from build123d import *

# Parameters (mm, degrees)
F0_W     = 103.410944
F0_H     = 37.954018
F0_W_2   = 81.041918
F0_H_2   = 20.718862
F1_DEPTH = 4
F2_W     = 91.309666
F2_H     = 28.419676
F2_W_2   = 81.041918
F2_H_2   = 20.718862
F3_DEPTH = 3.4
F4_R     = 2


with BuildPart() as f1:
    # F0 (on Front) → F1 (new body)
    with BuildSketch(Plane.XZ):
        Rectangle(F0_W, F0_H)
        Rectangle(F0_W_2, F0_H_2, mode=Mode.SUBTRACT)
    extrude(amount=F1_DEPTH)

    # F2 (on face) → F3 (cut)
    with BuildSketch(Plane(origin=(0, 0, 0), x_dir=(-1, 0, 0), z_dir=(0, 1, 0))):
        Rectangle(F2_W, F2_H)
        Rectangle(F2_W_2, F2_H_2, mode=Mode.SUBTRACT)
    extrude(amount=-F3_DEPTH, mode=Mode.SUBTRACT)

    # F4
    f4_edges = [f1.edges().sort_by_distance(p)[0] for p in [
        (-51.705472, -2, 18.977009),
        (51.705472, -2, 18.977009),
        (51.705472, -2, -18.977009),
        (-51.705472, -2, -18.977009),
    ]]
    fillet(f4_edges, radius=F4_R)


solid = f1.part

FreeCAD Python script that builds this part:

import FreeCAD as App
import Part
import Sketcher

V = App.Vector


def edges_at(feature, points):
    """Names of the edges that pass closest to the given points."""
    edges = feature.Shape.Edges
    near = lambda p: min(range(len(edges)), key=lambda i: edges[i].distToShape(Part.Vertex(*p))[0])
    return sorted({f"Edge{near(p) + 1}" for p in points})

doc = App.newDocument("Part")
body = doc.addObject("PartDesign::Body", "Body")

sketch1 = body.newObject("Sketcher::SketchObject", "Sketch")
sketch1.AttachmentSupport = (doc.getObject("XZ_Plane"), [""])
sketch1.MapMode = "FlatFace"
sketch1.addGeometry([
    Part.LineSegment(V(-52, 19, 0), V(-52, -19, 0)),
    Part.LineSegment(V(-52, -19, 0), V(52, -19, 0)),
    Part.LineSegment(V(52, -19, 0), V(52, 19, 0)),
    Part.LineSegment(V(52, 19, 0), V(-52, 19, 0)),
    Part.LineSegment(V(41, -10, 0), V(-41, -10, 0)),
    Part.LineSegment(V(-41, -10, 0), V(-41, 10, 0)),
    Part.LineSegment(V(-41, 10, 0), V(41, 10, 0)),
    Part.LineSegment(V(41, 10, 0), V(41, -10, 0)),
], False)
sketch1.addConstraint([
    Sketcher.Constraint("Coincident", 0, 2, 1, 1),
    Sketcher.Constraint("Coincident", 1, 2, 2, 1),
    Sketcher.Constraint("Coincident", 2, 2, 3, 1),
    Sketcher.Constraint("Coincident", 3, 2, 0, 1),
    Sketcher.Constraint("Coincident", 4, 2, 5, 1),
    Sketcher.Constraint("Coincident", 5, 2, 6, 1),
    Sketcher.Constraint("Coincident", 6, 2, 7, 1),
    Sketcher.Constraint("Coincident", 7, 2, 4, 1),
    Sketcher.Constraint("Vertical", 0),
    Sketcher.Constraint("Horizontal", 1),
    Sketcher.Constraint("Vertical", 2),
    Sketcher.Constraint("Horizontal", 3),
    Sketcher.Constraint("Horizontal", 4),
    Sketcher.Constraint("Vertical", 5),
    Sketcher.Constraint("Horizontal", 6),
    Sketcher.Constraint("Vertical", 7),
    Sketcher.Constraint("Symmetric", 0, 2, 2, 2, -1, 1),
    Sketcher.Constraint("Symmetric", 4, 2, 6, 2, -1, 1),
    Sketcher.Constraint("DistanceX", 1, 1, 1, 2, 103.410944),
    Sketcher.Constraint("DistanceX", 4, 2, 4, 1, 81.041918),
    Sketcher.Constraint("DistanceY", 0, 2, 0, 1, 37.954018),
    Sketcher.Constraint("DistanceY", 5, 1, 5, 2, 20.718862),
])
pad1 = body.newObject("PartDesign::Pad", "Pad")
pad1.Profile = sketch1
pad1.Length = 4

sketch2 = body.newObject("Sketcher::SketchObject", "Sketch001")
sketch2.AttachmentSupport = (doc.getObject("XZ_Plane"), [""])
sketch2.MapMode = "FlatFace"
sketch2.addGeometry([
    Part.LineSegment(V(46, 14, 0), V(46, -14, 0)),
    Part.LineSegment(V(46, -14, 0), V(-46, -14, 0)),
    Part.LineSegment(V(-46, -14, 0), V(-46, 14, 0)),
    Part.LineSegment(V(-46, 14, 0), V(46, 14, 0)),
    Part.LineSegment(V(-41, -10, 0), V(41, -10, 0)),
    Part.LineSegment(V(41, -10, 0), V(41, 10, 0)),
    Part.LineSegment(V(41, 10, 0), V(-41, 10, 0)),
    Part.LineSegment(V(-41, 10, 0), V(-41, -10, 0)),
], False)
sketch2.addConstraint([
    Sketcher.Constraint("Coincident", 0, 2, 1, 1),
    Sketcher.Constraint("Coincident", 1, 2, 2, 1),
    Sketcher.Constraint("Coincident", 2, 2, 3, 1),
    Sketcher.Constraint("Coincident", 3, 2, 0, 1),
    Sketcher.Constraint("Coincident", 4, 2, 5, 1),
    Sketcher.Constraint("Coincident", 5, 2, 6, 1),
    Sketcher.Constraint("Coincident", 6, 2, 7, 1),
    Sketcher.Constraint("Coincident", 7, 2, 4, 1),
    Sketcher.Constraint("Vertical", 0),
    Sketcher.Constraint("Horizontal", 1),
    Sketcher.Constraint("Vertical", 2),
    Sketcher.Constraint("Horizontal", 3),
    Sketcher.Constraint("Horizontal", 4),
    Sketcher.Constraint("Vertical", 5),
    Sketcher.Constraint("Horizontal", 6),
    Sketcher.Constraint("Vertical", 7),
    Sketcher.Constraint("Symmetric", 0, 2, 2, 2, -1, 1),
    Sketcher.Constraint("Symmetric", 4, 2, 6, 2, -1, 1),
    Sketcher.Constraint("DistanceX", 1, 2, 1, 1, 91.309666),
    Sketcher.Constraint("DistanceX", 4, 1, 4, 2, 81.041918),
    Sketcher.Constraint("DistanceY", 0, 2, 0, 1, 28.419676),
    Sketcher.Constraint("DistanceY", 5, 1, 5, 2, 20.718862),
])
pocket1 = body.newObject("PartDesign::Pocket", "Pocket")
pocket1.Profile = sketch2
pocket1.Length = 3.4
pocket1.Reversed = True
doc.recompute()

fillet = body.newObject("PartDesign::Fillet", "Fillet")
fillet.Base = (pocket1, edges_at(pocket1, [
    (-51.705, -2, 18.977),
    (51.705, -2, 18.977),
    (51.705, -2, -18.977),
    (-51.705, -2, -18.977),
]))
fillet.Radius = 2

doc.recompute()
